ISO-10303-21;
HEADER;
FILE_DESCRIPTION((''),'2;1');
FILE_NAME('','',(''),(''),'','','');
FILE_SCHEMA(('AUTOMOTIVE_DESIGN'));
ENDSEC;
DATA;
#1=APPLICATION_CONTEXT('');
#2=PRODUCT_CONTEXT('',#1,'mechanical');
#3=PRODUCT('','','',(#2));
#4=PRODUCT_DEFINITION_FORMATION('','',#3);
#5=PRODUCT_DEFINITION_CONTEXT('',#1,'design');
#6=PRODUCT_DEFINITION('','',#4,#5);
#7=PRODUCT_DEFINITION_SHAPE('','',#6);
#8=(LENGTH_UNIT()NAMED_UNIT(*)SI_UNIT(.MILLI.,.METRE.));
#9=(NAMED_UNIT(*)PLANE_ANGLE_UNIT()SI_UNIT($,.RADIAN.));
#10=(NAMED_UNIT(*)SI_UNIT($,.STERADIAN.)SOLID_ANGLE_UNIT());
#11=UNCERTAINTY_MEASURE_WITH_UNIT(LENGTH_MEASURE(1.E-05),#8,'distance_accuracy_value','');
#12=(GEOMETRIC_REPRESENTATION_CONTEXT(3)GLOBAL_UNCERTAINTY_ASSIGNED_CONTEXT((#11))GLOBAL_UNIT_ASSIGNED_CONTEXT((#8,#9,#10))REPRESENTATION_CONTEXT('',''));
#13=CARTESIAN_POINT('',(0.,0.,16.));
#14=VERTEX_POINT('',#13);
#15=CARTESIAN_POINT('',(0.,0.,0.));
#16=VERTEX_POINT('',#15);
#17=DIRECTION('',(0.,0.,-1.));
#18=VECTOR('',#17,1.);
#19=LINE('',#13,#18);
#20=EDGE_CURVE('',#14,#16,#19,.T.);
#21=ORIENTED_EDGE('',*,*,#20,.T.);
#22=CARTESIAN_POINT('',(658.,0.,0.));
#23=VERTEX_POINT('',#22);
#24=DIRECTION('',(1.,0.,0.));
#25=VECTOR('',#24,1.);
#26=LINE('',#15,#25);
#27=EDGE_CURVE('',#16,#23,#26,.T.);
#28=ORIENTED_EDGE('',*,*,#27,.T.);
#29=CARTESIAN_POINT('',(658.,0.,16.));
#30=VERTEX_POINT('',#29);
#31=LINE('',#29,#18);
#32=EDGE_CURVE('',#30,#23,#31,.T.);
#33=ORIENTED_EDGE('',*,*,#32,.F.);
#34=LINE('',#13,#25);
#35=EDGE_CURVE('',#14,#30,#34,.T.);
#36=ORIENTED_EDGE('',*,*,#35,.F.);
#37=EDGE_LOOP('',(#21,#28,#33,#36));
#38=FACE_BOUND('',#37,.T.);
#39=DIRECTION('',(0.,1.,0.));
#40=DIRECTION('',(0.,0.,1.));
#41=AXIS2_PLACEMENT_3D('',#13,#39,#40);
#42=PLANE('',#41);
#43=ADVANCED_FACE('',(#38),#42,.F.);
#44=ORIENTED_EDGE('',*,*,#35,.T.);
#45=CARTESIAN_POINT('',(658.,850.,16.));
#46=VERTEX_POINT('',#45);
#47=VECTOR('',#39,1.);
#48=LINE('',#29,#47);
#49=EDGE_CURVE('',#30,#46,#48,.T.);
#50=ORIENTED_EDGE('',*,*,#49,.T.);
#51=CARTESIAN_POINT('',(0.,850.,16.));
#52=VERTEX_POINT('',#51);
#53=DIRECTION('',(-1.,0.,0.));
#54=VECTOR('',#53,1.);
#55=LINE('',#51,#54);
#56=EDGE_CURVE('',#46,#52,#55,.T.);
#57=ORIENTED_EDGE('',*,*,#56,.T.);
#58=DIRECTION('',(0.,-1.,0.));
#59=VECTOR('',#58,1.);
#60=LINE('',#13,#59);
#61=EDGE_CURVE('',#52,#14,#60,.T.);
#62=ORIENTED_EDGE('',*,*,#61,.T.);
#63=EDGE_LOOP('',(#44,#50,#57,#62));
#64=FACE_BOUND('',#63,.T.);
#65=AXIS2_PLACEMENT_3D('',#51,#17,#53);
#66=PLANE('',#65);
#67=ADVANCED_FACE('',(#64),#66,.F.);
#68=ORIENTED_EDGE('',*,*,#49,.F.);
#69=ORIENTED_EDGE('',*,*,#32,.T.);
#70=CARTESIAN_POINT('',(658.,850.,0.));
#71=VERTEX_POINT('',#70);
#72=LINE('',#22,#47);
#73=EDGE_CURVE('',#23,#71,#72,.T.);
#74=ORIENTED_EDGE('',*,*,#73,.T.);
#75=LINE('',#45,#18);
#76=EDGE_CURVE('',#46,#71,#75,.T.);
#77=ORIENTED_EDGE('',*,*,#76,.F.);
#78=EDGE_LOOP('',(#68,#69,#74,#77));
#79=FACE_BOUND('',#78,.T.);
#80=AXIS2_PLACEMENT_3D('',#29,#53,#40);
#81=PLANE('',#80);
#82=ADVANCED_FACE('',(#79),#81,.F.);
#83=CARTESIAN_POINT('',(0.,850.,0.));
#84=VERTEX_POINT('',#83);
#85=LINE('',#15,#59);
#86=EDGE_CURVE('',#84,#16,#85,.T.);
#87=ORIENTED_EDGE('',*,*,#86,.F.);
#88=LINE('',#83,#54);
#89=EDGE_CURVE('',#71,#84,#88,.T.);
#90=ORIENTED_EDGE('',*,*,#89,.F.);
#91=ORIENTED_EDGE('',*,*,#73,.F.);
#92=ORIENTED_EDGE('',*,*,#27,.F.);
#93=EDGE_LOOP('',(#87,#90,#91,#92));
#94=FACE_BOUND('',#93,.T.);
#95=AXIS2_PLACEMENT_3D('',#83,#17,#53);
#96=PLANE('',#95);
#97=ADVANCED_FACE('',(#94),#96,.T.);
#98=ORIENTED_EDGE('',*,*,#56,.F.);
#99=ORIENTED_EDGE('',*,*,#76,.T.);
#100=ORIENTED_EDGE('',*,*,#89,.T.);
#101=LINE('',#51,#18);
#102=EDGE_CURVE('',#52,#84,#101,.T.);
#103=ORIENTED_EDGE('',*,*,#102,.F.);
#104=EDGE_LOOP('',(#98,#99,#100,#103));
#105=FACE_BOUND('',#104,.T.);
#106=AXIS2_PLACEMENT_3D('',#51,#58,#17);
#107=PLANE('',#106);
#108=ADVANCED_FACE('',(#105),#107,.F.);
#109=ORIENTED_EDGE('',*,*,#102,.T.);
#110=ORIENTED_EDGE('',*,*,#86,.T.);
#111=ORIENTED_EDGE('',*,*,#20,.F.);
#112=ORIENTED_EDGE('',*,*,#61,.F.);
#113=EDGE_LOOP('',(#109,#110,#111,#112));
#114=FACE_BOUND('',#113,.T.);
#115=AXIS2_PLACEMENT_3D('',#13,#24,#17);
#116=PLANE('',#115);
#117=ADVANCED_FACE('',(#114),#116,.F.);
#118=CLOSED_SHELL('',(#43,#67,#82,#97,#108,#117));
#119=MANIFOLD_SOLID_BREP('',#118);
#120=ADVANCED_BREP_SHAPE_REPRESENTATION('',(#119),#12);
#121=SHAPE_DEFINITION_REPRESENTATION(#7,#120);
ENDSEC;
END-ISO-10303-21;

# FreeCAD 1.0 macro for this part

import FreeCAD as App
import Part
import Sketcher
from FreeCAD import Vector

doc = App.newDocument("Part")
body = doc.addObject("PartDesign::Body", "Body")

# Sketch on XY plane
sketch1 = doc.addObject("Sketcher::SketchObject", "Sketch")
body.addObject(sketch1)
sketch1.AttachmentSupport = (doc.XY_Plane, [""])
sketch1.MapMode = "FlatFace"
sketch1.addGeometry(Part.LineSegment(Vector(0, 850, 0), Vector(0, 0, 0)), False)
sketch1.addGeometry(Part.LineSegment(Vector(0, 0, 0), Vector(658, 0, 0)), False)
sketch1.addGeometry(Part.LineSegment(Vector(658, 0, 0), Vector(658, 850, 0)), False)
sketch1.addGeometry(Part.LineSegment(Vector(658, 850, 0), Vector(0, 850, 0)), False)
sketch1.addConstraint(Sketcher.Constraint("Coincident", 0, 2, 1, 1))
sketch1.addConstraint(Sketcher.Constraint("Coincident", 1, 2, 2, 1))
sketch1.addConstraint(Sketcher.Constraint("Coincident", 2, 2, 3, 1))
sketch1.addConstraint(Sketcher.Constraint("Coincident", 3, 2, 0, 1))
sketch1.addConstraint(Sketcher.Constraint("Vertical", 0))
sketch1.addConstraint(Sketcher.Constraint("Horizontal", 1))
sketch1.addConstraint(Sketcher.Constraint("Vertical", 2))
sketch1.addConstraint(Sketcher.Constraint("Horizontal", 3))
sketch1.addConstraint(Sketcher.Constraint("Coincident", 0, 2, -1, 1))
sketch1.addConstraint(Sketcher.Constraint("DistanceX", 1, 1, 1, 2, 658.0))
sketch1.addConstraint(Sketcher.Constraint("DistanceY", 0, 2, 0, 1, 850.0))
pad1 = doc.addObject("PartDesign::Pad", "Pad")
body.addObject(pad1)
pad1.Profile = sketch1
pad1.Length = 16

doc.recompute()
